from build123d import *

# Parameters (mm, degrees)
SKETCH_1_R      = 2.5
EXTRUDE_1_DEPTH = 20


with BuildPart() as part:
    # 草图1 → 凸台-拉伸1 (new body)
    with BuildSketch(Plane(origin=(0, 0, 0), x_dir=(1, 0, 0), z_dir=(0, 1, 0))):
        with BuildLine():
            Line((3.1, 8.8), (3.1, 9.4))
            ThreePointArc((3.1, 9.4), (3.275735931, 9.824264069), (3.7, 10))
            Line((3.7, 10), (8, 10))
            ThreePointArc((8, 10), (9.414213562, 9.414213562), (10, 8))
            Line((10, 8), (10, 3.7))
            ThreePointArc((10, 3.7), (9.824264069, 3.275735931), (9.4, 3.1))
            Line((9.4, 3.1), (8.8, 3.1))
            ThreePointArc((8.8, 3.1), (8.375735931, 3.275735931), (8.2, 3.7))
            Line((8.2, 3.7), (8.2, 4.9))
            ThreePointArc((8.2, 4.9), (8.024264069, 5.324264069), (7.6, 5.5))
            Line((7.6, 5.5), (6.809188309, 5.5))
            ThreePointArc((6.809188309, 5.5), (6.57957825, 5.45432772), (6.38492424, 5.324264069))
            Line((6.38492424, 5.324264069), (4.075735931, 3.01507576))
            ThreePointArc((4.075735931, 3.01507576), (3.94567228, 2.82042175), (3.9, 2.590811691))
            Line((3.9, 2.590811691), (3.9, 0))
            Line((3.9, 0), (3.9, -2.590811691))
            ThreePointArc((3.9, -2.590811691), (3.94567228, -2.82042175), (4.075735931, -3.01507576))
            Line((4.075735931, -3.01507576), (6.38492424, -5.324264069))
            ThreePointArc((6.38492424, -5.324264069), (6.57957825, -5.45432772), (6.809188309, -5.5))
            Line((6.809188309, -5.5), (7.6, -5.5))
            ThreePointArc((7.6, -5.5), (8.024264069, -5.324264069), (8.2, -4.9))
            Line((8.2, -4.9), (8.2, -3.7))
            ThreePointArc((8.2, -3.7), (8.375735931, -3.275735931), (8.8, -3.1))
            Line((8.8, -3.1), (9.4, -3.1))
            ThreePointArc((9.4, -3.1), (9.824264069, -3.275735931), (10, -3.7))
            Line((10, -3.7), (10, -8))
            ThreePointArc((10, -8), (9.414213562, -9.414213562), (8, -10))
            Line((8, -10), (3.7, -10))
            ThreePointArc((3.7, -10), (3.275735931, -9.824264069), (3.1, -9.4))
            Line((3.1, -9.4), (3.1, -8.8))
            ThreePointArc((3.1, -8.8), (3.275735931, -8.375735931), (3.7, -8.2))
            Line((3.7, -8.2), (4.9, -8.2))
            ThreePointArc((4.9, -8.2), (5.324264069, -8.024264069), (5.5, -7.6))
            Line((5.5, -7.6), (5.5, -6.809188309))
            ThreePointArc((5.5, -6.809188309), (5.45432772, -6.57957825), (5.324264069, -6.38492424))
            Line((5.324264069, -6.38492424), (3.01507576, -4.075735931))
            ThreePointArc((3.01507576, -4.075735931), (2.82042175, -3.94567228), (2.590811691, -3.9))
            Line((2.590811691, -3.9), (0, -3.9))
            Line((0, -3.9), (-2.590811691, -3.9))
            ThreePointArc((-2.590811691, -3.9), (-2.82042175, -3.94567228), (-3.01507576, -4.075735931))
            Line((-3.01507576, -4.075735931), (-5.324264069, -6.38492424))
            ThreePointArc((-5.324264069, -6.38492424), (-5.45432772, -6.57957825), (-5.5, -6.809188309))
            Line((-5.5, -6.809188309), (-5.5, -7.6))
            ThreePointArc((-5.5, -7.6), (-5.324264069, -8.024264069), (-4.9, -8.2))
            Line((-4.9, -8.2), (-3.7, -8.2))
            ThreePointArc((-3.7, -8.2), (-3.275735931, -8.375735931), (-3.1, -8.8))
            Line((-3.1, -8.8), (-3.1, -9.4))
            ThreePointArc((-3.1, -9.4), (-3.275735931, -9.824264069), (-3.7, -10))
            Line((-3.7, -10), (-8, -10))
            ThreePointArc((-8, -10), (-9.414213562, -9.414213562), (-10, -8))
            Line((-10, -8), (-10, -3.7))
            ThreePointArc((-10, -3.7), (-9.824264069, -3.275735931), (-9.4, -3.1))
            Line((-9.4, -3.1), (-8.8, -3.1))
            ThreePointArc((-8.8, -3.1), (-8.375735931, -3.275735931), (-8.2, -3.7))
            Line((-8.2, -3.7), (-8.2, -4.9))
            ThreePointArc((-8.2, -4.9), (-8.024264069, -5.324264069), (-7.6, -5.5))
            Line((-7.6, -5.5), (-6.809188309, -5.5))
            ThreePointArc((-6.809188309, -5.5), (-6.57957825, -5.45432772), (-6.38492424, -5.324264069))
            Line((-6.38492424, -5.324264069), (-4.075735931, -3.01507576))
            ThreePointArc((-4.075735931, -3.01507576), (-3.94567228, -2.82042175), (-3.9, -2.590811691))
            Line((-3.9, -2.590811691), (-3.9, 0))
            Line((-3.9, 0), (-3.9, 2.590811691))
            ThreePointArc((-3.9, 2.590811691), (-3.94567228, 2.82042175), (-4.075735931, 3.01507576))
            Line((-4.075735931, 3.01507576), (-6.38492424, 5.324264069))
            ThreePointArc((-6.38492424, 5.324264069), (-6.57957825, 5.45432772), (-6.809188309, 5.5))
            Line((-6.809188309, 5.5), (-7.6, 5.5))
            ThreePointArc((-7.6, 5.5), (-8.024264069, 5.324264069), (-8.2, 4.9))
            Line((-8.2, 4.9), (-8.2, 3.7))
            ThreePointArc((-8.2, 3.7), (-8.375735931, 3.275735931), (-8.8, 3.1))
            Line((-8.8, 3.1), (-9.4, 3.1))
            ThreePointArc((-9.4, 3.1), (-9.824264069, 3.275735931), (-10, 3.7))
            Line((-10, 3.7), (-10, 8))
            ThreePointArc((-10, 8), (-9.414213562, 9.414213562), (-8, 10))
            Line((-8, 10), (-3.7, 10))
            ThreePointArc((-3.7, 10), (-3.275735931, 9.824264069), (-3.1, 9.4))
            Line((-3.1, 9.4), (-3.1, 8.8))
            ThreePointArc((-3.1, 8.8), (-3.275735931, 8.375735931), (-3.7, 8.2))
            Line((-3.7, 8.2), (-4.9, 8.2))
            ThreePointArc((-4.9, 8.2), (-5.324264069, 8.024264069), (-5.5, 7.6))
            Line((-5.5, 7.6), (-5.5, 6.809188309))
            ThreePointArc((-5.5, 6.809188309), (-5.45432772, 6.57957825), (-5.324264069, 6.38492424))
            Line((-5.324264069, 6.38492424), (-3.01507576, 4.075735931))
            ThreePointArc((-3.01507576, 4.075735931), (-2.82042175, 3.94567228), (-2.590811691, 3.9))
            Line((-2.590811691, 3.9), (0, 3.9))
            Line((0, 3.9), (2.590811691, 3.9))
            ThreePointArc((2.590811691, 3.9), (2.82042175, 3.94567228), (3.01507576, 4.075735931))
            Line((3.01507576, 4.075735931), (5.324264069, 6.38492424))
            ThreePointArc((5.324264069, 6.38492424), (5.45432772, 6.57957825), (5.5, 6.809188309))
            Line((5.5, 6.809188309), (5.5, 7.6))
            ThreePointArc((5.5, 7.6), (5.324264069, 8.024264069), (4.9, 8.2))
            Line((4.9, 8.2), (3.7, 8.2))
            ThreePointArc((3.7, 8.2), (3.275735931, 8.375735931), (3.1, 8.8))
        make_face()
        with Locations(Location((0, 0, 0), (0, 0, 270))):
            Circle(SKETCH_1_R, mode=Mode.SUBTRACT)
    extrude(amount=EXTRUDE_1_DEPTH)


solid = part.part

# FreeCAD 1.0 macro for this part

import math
import FreeCAD as App
import Part
import Sketcher
from FreeCAD import Vector
Q = App.Units.Quantity

doc = App.newDocument("Part")
body = doc.addObject("PartDesign::Body", "Body")

sketch1 = body.newObject("Sketcher::SketchObject", "Sketch")
sketch1.AttachmentSupport = (doc.getObject("XZ_Plane"), [""])
sketch1.MapMode = "FlatFace"
sketch1.addGeometry([
    Part.LineSegment(Vector(3.1, -9.4, 0), Vector(3.1, -8.8, 0)),
    Part.ArcOfCircle(Part.Circle(Vector(3.7, -8.8, 0), Vector(0, 0, 1), 0.6), math.radians(90), math.radians(180)),
    Part.LineSegment(Vector(3.7, -8.2, 0), Vector(4.9, -8.2, 0)),
    Part.ArcOfCircle(Part.Circle(Vector(4.9, -7.6, 0), Vector(0, 0, 1), 0.6), math.radians(-90), math.radians(0)),
    Part.LineSegment(Vector(5.5, -7.6, 0), Vector(5.5, -6.81, 0)),
    Part.ArcOfCircle(Part.Circle(Vector(4.9, -6.81, 0), Vector(0, 0, 1), 0.6), math.radians(0), math.radians(45)),
    Part.LineSegment(Vector(5.32, -6.38, 0), Vector(3.02, -4.08, 0)),
    Part.ArcOfCircle(Part.Circle(Vector(2.59, -4.5, 0), Vector(0, 0, 1), 0.6), math.radians(45), math.radians(90)),
    Part.LineSegment(Vector(2.59, -3.9, 0), Vector(-2.59, -3.9, 0)),
    Part.ArcOfCircle(Part.Circle(Vector(-2.59, -4.5, 0), Vector(0, 0, 1), 0.6), math.radians(90), math.radians(135)),
    Part.LineSegment(Vector(-3.02, -4.08, 0), Vector(-5.32, -6.38, 0)),
    Part.ArcOfCircle(Part.Circle(Vector(-4.9, -6.81, 0), Vector(0, 0, 1), 0.6), math.radians(135), math.radians(180)),
    Part.LineSegment(Vector(-5.5, -6.81, 0), Vector(-5.5, -7.6, 0)),
    Part.ArcOfCircle(Part.Circle(Vector(-4.9, -7.6, 0), Vector(0, 0, 1), 0.6), math.radians(180), math.radians(270)),
    Part.LineSegment(Vector(-4.9, -8.2, 0), Vector(-3.7, -8.2, 0)),
    Part.ArcOfCircle(Part.Circle(Vector(-3.7, -8.8, 0), Vector(0, 0, 1), 0.6), math.radians(0), math.radians(90)),
    Part.LineSegment(Vector(-3.1, -8.8, 0), Vector(-3.1, -9.4, 0)),
    Part.ArcOfCircle(Part.Circle(Vector(-3.7, -9.4, 0), Vector(0, 0, 1), 0.6), math.radians(-90), math.radians(0)),
    Part.LineSegment(Vector(-3.7, -10, 0), Vector(-8, -10, 0)),
    Part.ArcOfCircle(Part.Circle(Vector(-8, -8, 0), Vector(0, 0, 1), 2), math.radians(-180), math.radians(-90)),
    Part.LineSegment(Vector(-10, -8, 0), Vector(-10, -3.7, 0)),
    Part.ArcOfCircle(Part.Circle(Vector(-9.4, -3.7, 0), Vector(0, 0, 1), 0.6), math.radians(90), math.radians(180)),
    Part.LineSegment(Vector(-9.4, -3.1, 0), Vector(-8.8, -3.1, 0)),
    Part.ArcOfCircle(Part.Circle(Vector(-8.8, -3.7, 0), Vector(0, 0, 1), 0.6), math.radians(0), math.radians(90)),
    Part.LineSegment(Vector(-8.2, -3.7, 0), Vector(-8.2, -4.9, 0)),
    Part.ArcOfCircle(Part.Circle(Vector(-7.6, -4.9, 0), Vector(0, 0, 1), 0.6), math.radians(180), math.radians(270)),
    Part.LineSegment(Vector(-7.6, -5.5, 0), Vector(-6.81, -5.5, 0)),
    Part.ArcOfCircle(Part.Circle(Vector(-6.81, -4.9, 0), Vector(0, 0, 1), 0.6), math.radians(-90), math.radians(-45)),
    Part.LineSegment(Vector(-6.38, -5.32, 0), Vector(-4.08, -3.02, 0)),
    Part.ArcOfCircle(Part.Circle(Vector(-4.5, -2.59, 0), Vector(0, 0, 1), 0.6), math.radians(-45), math.radians(0)),
    Part.LineSegment(Vector(-3.9, -2.59, 0), Vector(-3.9, 2.59, 0)),
    Part.ArcOfCircle(Part.Circle(Vector(-4.5, 2.59, 0), Vector(0, 0, 1), 0.6), math.radians(0), math.radians(45)),
    Part.LineSegment(Vector(-4.08, 3.02, 0), Vector(-6.38, 5.32, 0)),
    Part.ArcOfCircle(Part.Circle(Vector(-6.81, 4.9, 0), Vector(0, 0, 1), 0.6), math.radians(45), math.radians(90)),
    Part.LineSegment(Vector(-6.81, 5.5, 0), Vector(-7.6, 5.5, 0)),
    Part.ArcOfCircle(Part.Circle(Vector(-7.6, 4.9, 0), Vector(0, 0, 1), 0.6), math.radians(90), math.radians(180)),
    Part.LineSegment(Vector(-8.2, 4.9, 0), Vector(-8.2, 3.7, 0)),
    Part.ArcOfCircle(Part.Circle(Vector(-8.8, 3.7, 0), Vector(0, 0, 1), 0.6), math.radians(-90), math.radians(0)),
    Part.LineSegment(Vector(-8.8, 3.1, 0), Vector(-9.4, 3.1, 0)),
    Part.ArcOfCircle(Part.Circle(Vector(-9.4, 3.7, 0), Vector(0, 0, 1), 0.6), math.radians(180), math.radians(270)),
    Part.LineSegment(Vector(-10, 3.7, 0), Vector(-10, 8, 0)),
    Part.ArcOfCircle(Part.Circle(Vector(-8, 8, 0), Vector(0, 0, 1), 2), math.radians(90), math.radians(180)),
    Part.LineSegment(Vector(-8, 10, 0), Vector(-3.7, 10, 0)),
    Part.ArcOfCircle(Part.Circle(Vector(-3.7, 9.4, 0), Vector(0, 0, 1), 0.6), math.radians(0), math.radians(90)),
    Part.LineSegment(Vector(-3.1, 9.4, 0), Vector(-3.1, 8.8, 0)),
    Part.ArcOfCircle(Part.Circle(Vector(-3.7, 8.8, 0), Vector(0, 0, 1), 0.6), math.radians(-90), math.radians(0)),
    Part.LineSegment(Vector(-3.7, 8.2, 0), Vector(-4.9, 8.2, 0)),
    Part.ArcOfCircle(Part.Circle(Vector(-4.9, 7.6, 0), Vector(0, 0, 1), 0.6), math.radians(90), math.radians(180)),
    Part.LineSegment(Vector(-5.5, 7.6, 0), Vector(-5.5, 6.81, 0)),
    Part.ArcOfCircle(Part.Circle(Vector(-4.9, 6.81, 0), Vector(0, 0, 1), 0.6), math.radians(180), math.radians(225)),
    Part.LineSegment(Vector(-5.32, 6.38, 0), Vector(-3.02, 4.08, 0)),
    Part.ArcOfCircle(Part.Circle(Vector(-2.59, 4.5, 0), Vector(0, 0, 1), 0.6), math.radians(-135), math.radians(-90)),
    Part.LineSegment(Vector(-2.59, 3.9, 0), Vector(2.59, 3.9, 0)),
    Part.ArcOfCircle(Part.Circle(Vector(2.59, 4.5, 0), Vector(0, 0, 1), 0.6), math.radians(-90), math.radians(-45)),
    Part.LineSegment(Vector(3.02, 4.08, 0), Vector(5.32, 6.38, 0)),
    Part.ArcOfCircle(Part.Circle(Vector(4.9, 6.81, 0), Vector(0, 0, 1), 0.6), math.radians(-45), math.radians(0)),
    Part.LineSegment(Vector(5.5, 6.81, 0), Vector(5.5, 7.6, 0)),
    Part.ArcOfCircle(Part.Circle(Vector(4.9, 7.6, 0), Vector(0, 0, 1), 0.6), math.radians(0), math.radians(90)),
    Part.LineSegment(Vector(4.9, 8.2, 0), Vector(3.7, 8.2, 0)),
    Part.ArcOfCircle(Part.Circle(Vector(3.7, 8.8, 0), Vector(0, 0, 1), 0.6), math.radians(180), math.radians(270)),
    Part.LineSegment(Vector(3.1, 8.8, 0), Vector(3.1, 9.4, 0)),
    Part.ArcOfCircle(Part.Circle(Vector(3.7, 9.4, 0), Vector(0, 0, 1), 0.6), math.radians(90), math.radians(180)),
    Part.LineSegment(Vector(3.7, 10, 0), Vector(8, 10, 0)),
    Part.ArcOfCircle(Part.Circle(Vector(8, 8, 0), Vector(0, 0, 1), 2), math.radians(0), math.radians(90)),
    Part.LineSegment(Vector(10, 8, 0), Vector(10, 3.7, 0)),
    Part.ArcOfCircle(Part.Circle(Vector(9.4, 3.7, 0), Vector(0, 0, 1), 0.6), math.radians(-90), math.radians(0)),
    Part.LineSegment(Vector(9.4, 3.1, 0), Vector(8.8, 3.1, 0)),
    Part.ArcOfCircle(Part.Circle(Vector(8.8, 3.7, 0), Vector(0, 0, 1), 0.6), math.radians(180), math.radians(270)),
    Part.LineSegment(Vector(8.2, 3.7, 0), Vector(8.2, 4.9, 0)),
    Part.ArcOfCircle(Part.Circle(Vector(7.6, 4.9, 0), Vector(0, 0, 1), 0.6), math.radians(0), math.radians(90)),
    Part.LineSegment(Vector(7.6, 5.5, 0), Vector(6.81, 5.5, 0)),
    Part.ArcOfCircle(Part.Circle(Vector(6.81, 4.9, 0), Vector(0, 0, 1), 0.6), math.radians(90), math.radians(135)),
    Part.LineSegment(Vector(6.38, 5.32, 0), Vector(4.08, 3.02, 0)),
    Part.ArcOfCircle(Part.Circle(Vector(4.5, 2.59, 0), Vector(0, 0, 1), 0.6), math.radians(135), math.radians(180)),
    Part.LineSegment(Vector(3.9, 2.59, 0), Vector(3.9, -2.59, 0)),
    Part.ArcOfCircle(Part.Circle(Vector(4.5, -2.59, 0), Vector(0, 0, 1), 0.6), math.radians(180), math.radians(225)),
    Part.LineSegment(Vector(4.08, -3.02, 0), Vector(6.38, -5.32, 0)),
    Part.ArcOfCircle(Part.Circle(Vector(6.81, -4.9, 0), Vector(0, 0, 1), 0.6), math.radians(-135), math.radians(-90)),
    Part.LineSegment(Vector(6.81, -5.5, 0), Vector(7.6, -5.5, 0)),
    Part.ArcOfCircle(Part.Circle(Vector(7.6, -4.9, 0), Vector(0, 0, 1), 0.6), math.radians(-90), math.radians(0)),
    Part.LineSegment(Vector(8.2, -4.9, 0), Vector(8.2, -3.7, 0)),
    Part.ArcOfCircle(Part.Circle(Vector(8.8, -3.7, 0), Vector(0, 0, 1), 0.6), math.radians(90), math.radians(180)),
    Part.LineSegment(Vector(8.8, -3.1, 0), Vector(9.4, -3.1, 0)),
    Part.ArcOfCircle(Part.Circle(Vector(9.4, -3.7, 0), Vector(0, 0, 1), 0.6), math.radians(0), math.radians(90)),
    Part.LineSegment(Vector(10, -3.7, 0), Vector(10, -8, 0)),
    Part.ArcOfCircle(Part.Circle(Vector(8, -8, 0), Vector(0, 0, 1), 2), math.radians(-90), math.radians(0)),
    Part.LineSegment(Vector(8, -10, 0), Vector(3.7, -10, 0)),
    Part.ArcOfCircle(Part.Circle(Vector(3.7, -9.4, 0), Vector(0, 0, 1), 0.6), math.radians(180), math.radians(270)),
    Part.Circle(Vector(0, 0, 0), Vector(0, 0, 1), 2.5),
], False)
sketch1.addConstraint([
    Sketcher.Constraint("Tangent", 0, 2, 1, 2),
    Sketcher.Constraint("Tangent", 1, 1, 2, 1),
    Sketcher.Constraint("Tangent", 2, 2, 3, 1),
    Sketcher.Constraint("Tangent", 3, 2, 4, 1),
    Sketcher.Constraint("Tangent", 4, 2, 5, 1),
    Sketcher.Constraint("Tangent", 5, 2, 6, 1),
    Sketcher.Constraint("Tangent", 6, 2, 7, 1),
    Sketcher.Constraint("Tangent", 7, 2, 8, 1),
    Sketcher.Constraint("Tangent", 8, 2, 9, 1),
    Sketcher.Constraint("Tangent", 9, 2, 10, 1),
    Sketcher.Constraint("Tangent", 10, 2, 11, 1),
    Sketcher.Constraint("Tangent", 11, 2, 12, 1),
    Sketcher.Constraint("Tangent", 12, 2, 13, 1),
    Sketcher.Constraint("Tangent", 13, 2, 14, 1),
    Sketcher.Constraint("Tangent", 14, 2, 15, 2),
    Sketcher.Constraint("Tangent", 15, 1, 16, 1),
    Sketcher.Constraint("Tangent", 16, 2, 17, 2),
    Sketcher.Constraint("Tangent", 17, 1, 18, 1),
    Sketcher.Constraint("Tangent", 18, 2, 19, 2),
    Sketcher.Constraint("Tangent", 19, 1, 20, 1),
    Sketcher.Constraint("Tangent", 20, 2, 21, 2),
    Sketcher.Constraint("Tangent", 21, 1, 22, 1),
    Sketcher.Constraint("Tangent", 22, 2, 23, 2),
    Sketcher.Constraint("Tangent", 23, 1, 24, 1),
    Sketcher.Constraint("Tangent", 24, 2, 25, 1),
    Sketcher.Constraint("Tangent", 25, 2, 26, 1),
    Sketcher.Constraint("Tangent", 26, 2, 27, 1),
    Sketcher.Constraint("Tangent", 27, 2, 28, 1),
    Sketcher.Constraint("Tangent", 28, 2, 29, 1),
    Sketcher.Constraint("Tangent", 29, 2, 30, 1),
    Sketcher.Constraint("Tangent", 30, 2, 31, 1),
    Sketcher.Constraint("Tangent", 31, 2, 32, 1),
    Sketcher.Constraint("Tangent", 32, 2, 33, 1),
    Sketcher.Constraint("Tangent", 33, 2, 34, 1),
    Sketcher.Constraint("Tangent", 34, 2, 35, 1),
    Sketcher.Constraint("Tangent", 35, 2, 36, 1),
    Sketcher.Constraint("Tangent", 36, 2, 37, 2),
    Sketcher.Constraint("Tangent", 37, 1, 38, 1),
    Sketcher.Constraint("Tangent", 38, 2, 39, 2),
    Sketcher.Constraint("Tangent", 39, 1, 40, 1),
    Sketcher.Constraint("Tangent", 40, 2, 41, 2),
    Sketcher.Constraint("Tangent", 41, 1, 42, 1),
    Sketcher.Constraint("Tangent", 42, 2, 43, 2),
    Sketcher.Constraint("Tangent", 43, 1, 44, 1),
    Sketcher.Constraint("Tangent", 44, 2, 45, 2),
    Sketcher.Constraint("Tangent", 45, 1, 46, 1),
    Sketcher.Constraint("Tangent", 46, 2, 47, 1),
    Sketcher.Constraint("Tangent", 47, 2, 48, 1),
    Sketcher.Constraint("Tangent", 48, 2, 49, 1),
    Sketcher.Constraint("Tangent", 49, 2, 50, 1),
    Sketcher.Constraint("Tangent", 50, 2, 51, 1),
    Sketcher.Constraint("Tangent", 51, 2, 52, 1),
    Sketcher.Constraint("Tangent", 52, 2, 53, 1),
    Sketcher.Constraint("Tangent", 53, 2, 54, 1),
    Sketcher.Constraint("Tangent", 54, 2, 55, 1),
    Sketcher.Constraint("Tangent", 55, 2, 56, 1),
    Sketcher.Constraint("Tangent", 56, 2, 57, 1),
    Sketcher.Constraint("Tangent", 57, 2, 58, 1),
    Sketcher.Constraint("Tangent", 58, 2, 59, 2),
    Sketcher.Constraint("Tangent", 59, 1, 60, 1),
    Sketcher.Constraint("Tangent", 60, 2, 61, 2),
    Sketcher.Constraint("Tangent", 61, 1, 62, 1),
    Sketcher.Constraint("Tangent", 62, 2, 63, 2),
    Sketcher.Constraint("Tangent", 63, 1, 64, 1),
    Sketcher.Constraint("Tangent", 64, 2, 65, 2),
    Sketcher.Constraint("Tangent", 65, 1, 66, 1),
    Sketcher.Constraint("Tangent", 66, 2, 67, 2),
    Sketcher.Constraint("Tangent", 67, 1, 68, 1),
    Sketcher.Constraint("Tangent", 68, 2, 69, 1),
    Sketcher.Constraint("Tangent", 69, 2, 70, 1),
    Sketcher.Constraint("Tangent", 70, 2, 71, 1),
    Sketcher.Constraint("Tangent", 71, 2, 72, 1),
    Sketcher.Constraint("Tangent", 72, 2, 73, 1),
    Sketcher.Constraint("Tangent", 73, 2, 74, 1),
    Sketcher.Constraint("Tangent", 74, 2, 75, 1),
    Sketcher.Constraint("Tangent", 75, 2, 76, 1),
    Sketcher.Constraint("Tangent", 76, 2, 77, 1),
    Sketcher.Constraint("Tangent", 77, 2, 78, 1),
    Sketcher.Constraint("Tangent", 78, 2, 79, 1),
    Sketcher.Constraint("Tangent", 79, 2, 80, 1),
    Sketcher.Constraint("Tangent", 80, 2, 81, 2),
    Sketcher.Constraint("Tangent", 81, 1, 82, 1),
    Sketcher.Constraint("Tangent", 82, 2, 83, 2),
    Sketcher.Constraint("Tangent", 83, 1, 84, 1),
    Sketcher.Constraint("Tangent", 84, 2, 85, 2),
    Sketcher.Constraint("Tangent", 85, 1, 86, 1),
    Sketcher.Constraint("Tangent", 86, 2, 87, 2),
    Sketcher.Constraint("Tangent", 87, 1, 0, 1),
    Sketcher.Constraint("Vertical", 0),
    Sketcher.Constraint("Horizontal", 2),
    Sketcher.Constraint("Vertical", 4),
    Sketcher.Constraint("Horizontal", 8),
    Sketcher.Constraint("Vertical", 12),
    Sketcher.Constraint("Horizontal", 14),
    Sketcher.Constraint("Vertical", 16),
    Sketcher.Constraint("Horizontal", 18),
    Sketcher.Constraint("Vertical", 20),
    Sketcher.Constraint("Horizontal", 22),
    Sketcher.Constraint("Vertical", 24),
    Sketcher.Constraint("Horizontal", 26),
    Sketcher.Constraint("Vertical", 30),
    Sketcher.Constraint("Horizontal", 34),
    Sketcher.Constraint("Vertical", 36),
    Sketcher.Constraint("Horizontal", 38),
    Sketcher.Constraint("Vertical", 40),
    Sketcher.Constraint("Horizontal", 42),
    Sketcher.Constraint("Vertical", 44),
    Sketcher.Constraint("Horizontal", 46),
    Sketcher.Constraint("Vertical", 48),
    Sketcher.Constraint("Horizontal", 52),
    Sketcher.Constraint("Vertical", 56),
    Sketcher.Constraint("Horizontal", 58),
    Sketcher.Constraint("Vertical", 60),
    Sketcher.Constraint("Horizontal", 62),
    Sketcher.Constraint("Vertical", 64),
    Sketcher.Constraint("Horizontal", 66),
    Sketcher.Constraint("Vertical", 68),
    Sketcher.Constraint("Horizontal", 70),
    Sketcher.Constraint("Vertical", 74),
    Sketcher.Constraint("Horizontal", 78),
    Sketcher.Constraint("Vertical", 80),
    Sketcher.Constraint("Horizontal", 82),
    Sketcher.Constraint("Vertical", 84),
    Sketcher.Constraint("Horizontal", 86),
    Sketcher.Constraint("Coincident", 88, 3, -1, 1),
    Sketcher.Constraint("Equal", 1, 3),
    Sketcher.Constraint("Equal", 3, 5),
    Sketcher.Constraint("Equal", 5, 7),
    Sketcher.Constraint("Equal", 7, 9),
    Sketcher.Constraint("Equal", 9, 11),
    Sketcher.Constraint("Equal", 11, 13),
    Sketcher.Constraint("Equal", 13, 15),
    Sketcher.Constraint("Equal", 15, 17),
    Sketcher.Constraint("Equal", 17, 21),
    Sketcher.Constraint("Equal", 21, 23),
    Sketcher.Constraint("Equal", 23, 25),
    Sketcher.Constraint("Equal", 25, 27),
    Sketcher.Constraint("Equal", 27, 29),
    Sketcher.Constraint("Equal", 29, 31),
    Sketcher.Constraint("Equal", 31, 33),
    Sketcher.Constraint("Equal", 33, 35),
    Sketcher.Constraint("Equal", 35, 37),
    Sketcher.Constraint("Equal", 37, 39),
    Sketcher.Constraint("Equal", 19, 41),
    Sketcher.Constraint("Equal", 39, 43),
    Sketcher.Constraint("Equal", 43, 45),
    Sketcher.Constraint("Equal", 45, 47),
    Sketcher.Constraint("Equal", 47, 49),
    Sketcher.Constraint("Equal", 49, 51),
    Sketcher.Constraint("Equal", 51, 53),
    Sketcher.Constraint("Equal", 53, 55),
    Sketcher.Constraint("Equal", 55, 57),
    Sketcher.Constraint("Equal", 57, 59),
    Sketcher.Constraint("Equal", 59, 61),
    Sketcher.Constraint("Equal", 41, 63),
    Sketcher.Constraint("Equal", 61, 65),
    Sketcher.Constraint("Equal", 65, 67),
    Sketcher.Constraint("Equal", 67, 69),
    Sketcher.Constraint("Equal", 69, 71),
    Sketcher.Constraint("Equal", 71, 73),
    Sketcher.Constraint("Equal", 73, 75),
    Sketcher.Constraint("Equal", 75, 77),
    Sketcher.Constraint("Equal", 77, 79),
    Sketcher.Constraint("Equal", 79, 81),
    Sketcher.Constraint("Equal", 81, 83),
    Sketcher.Constraint("Equal", 63, 85),
    Sketcher.Constraint("Equal", 83, 87),
    Sketcher.Constraint("Symmetric", 1, 3, 45, 3, -1, 1),
    Sketcher.Constraint("Symmetric", 5, 3, 49, 3, -1, 1),
    Sketcher.Constraint("Symmetric", 7, 3, 51, 3, -1, 1),
    Sketcher.Constraint("Symmetric", 11, 3, 55, 3, -1, 1),
    Sketcher.Constraint("Symmetric", 15, 3, 59, 3, -1, 1),
    Sketcher.Constraint("Symmetric", 19, 3, 63, 3, -1, 1),
    Sketcher.Constraint("Symmetric", 23, 3, 67, 3, -1, 1),
    Sketcher.Constraint("Symmetric", 27, 3, 71, 3, -1, 1),
    Sketcher.Constraint("Symmetric", 29, 3, 73, 3, -1, 1),
    Sketcher.Constraint("Symmetric", 33, 3, 77, 3, -1, 1),
    Sketcher.Constraint("Symmetric", 37, 3, 81, 3, -1, 1),
    Sketcher.Constraint("Symmetric", 41, 3, 85, 3, -1, 1),
    Sketcher.Constraint("Symmetric", 5, 3, 11, 3, -2),
    Sketcher.Constraint("Symmetric", 1, 3, 15, 3, -2),
    Sketcher.Constraint("Symmetric", 41, 3, 63, 3, -2),
    Sketcher.Constraint("Symmetric", 37, 3, 67, 3, -2),
    Sketcher.Constraint("Symmetric", 33, 3, 71, 3, -2),
    Sketcher.Constraint("Perpendicular", 6, 10),
    Sketcher.Constraint("Parallel", 10, 28),
    Sketcher.Constraint("Perpendicular", 28, 32),
    Sketcher.Constraint("Perpendicular", 50, 54),
    Sketcher.Constraint("Perpendicular", 72, 76),
    Sketcher.Constraint("Horizontal", 31, 3, 73, 3),
    Sketcher.Constraint("Equal", 82, 0),
    Sketcher.Constraint("Equal", 78, 4),
    Sketcher.Constraint("Equal", 86, 20),
    Sketcher.Constraint("Equal", 58, 24),
    Sketcher.Constraint("Equal", 52, 30),
    Sketcher.Constraint("Equal", 10, 28),
    Sketcher.Constraint("Diameter", 88, Q("5 mm")),
    Sketcher.Constraint("Radius", 19, Q("2 mm")),
    Sketcher.Constraint("Radius", 1, Q("0.6 mm")),
    Sketcher.Constraint("DistanceX", 2, 1, 2, 2, Q("1.2 mm")),
    Sketcher.Constraint("DistanceX", 18, 2, 18, 1, Q("4.3 mm")),
    Sketcher.Constraint("DistanceX", 22, 1, 22, 2, Q("0.6 mm")),
    Sketcher.Constraint("DistanceX", 19, 3, -1, 1, Q("8 mm")),
    Sketcher.Constraint("DistanceY", 7, 3, -1, 1, Q("4.5 mm")),
    Sketcher.Constraint("DistanceX", 26, 1, 26, 2, Q("0.790812 mm")),
])
pad1 = body.newObject("PartDesign::Pad", "Pad")
pad1.Profile = sketch1
pad1.Length = 20
pad1.Reversed = True

doc.recompute()
